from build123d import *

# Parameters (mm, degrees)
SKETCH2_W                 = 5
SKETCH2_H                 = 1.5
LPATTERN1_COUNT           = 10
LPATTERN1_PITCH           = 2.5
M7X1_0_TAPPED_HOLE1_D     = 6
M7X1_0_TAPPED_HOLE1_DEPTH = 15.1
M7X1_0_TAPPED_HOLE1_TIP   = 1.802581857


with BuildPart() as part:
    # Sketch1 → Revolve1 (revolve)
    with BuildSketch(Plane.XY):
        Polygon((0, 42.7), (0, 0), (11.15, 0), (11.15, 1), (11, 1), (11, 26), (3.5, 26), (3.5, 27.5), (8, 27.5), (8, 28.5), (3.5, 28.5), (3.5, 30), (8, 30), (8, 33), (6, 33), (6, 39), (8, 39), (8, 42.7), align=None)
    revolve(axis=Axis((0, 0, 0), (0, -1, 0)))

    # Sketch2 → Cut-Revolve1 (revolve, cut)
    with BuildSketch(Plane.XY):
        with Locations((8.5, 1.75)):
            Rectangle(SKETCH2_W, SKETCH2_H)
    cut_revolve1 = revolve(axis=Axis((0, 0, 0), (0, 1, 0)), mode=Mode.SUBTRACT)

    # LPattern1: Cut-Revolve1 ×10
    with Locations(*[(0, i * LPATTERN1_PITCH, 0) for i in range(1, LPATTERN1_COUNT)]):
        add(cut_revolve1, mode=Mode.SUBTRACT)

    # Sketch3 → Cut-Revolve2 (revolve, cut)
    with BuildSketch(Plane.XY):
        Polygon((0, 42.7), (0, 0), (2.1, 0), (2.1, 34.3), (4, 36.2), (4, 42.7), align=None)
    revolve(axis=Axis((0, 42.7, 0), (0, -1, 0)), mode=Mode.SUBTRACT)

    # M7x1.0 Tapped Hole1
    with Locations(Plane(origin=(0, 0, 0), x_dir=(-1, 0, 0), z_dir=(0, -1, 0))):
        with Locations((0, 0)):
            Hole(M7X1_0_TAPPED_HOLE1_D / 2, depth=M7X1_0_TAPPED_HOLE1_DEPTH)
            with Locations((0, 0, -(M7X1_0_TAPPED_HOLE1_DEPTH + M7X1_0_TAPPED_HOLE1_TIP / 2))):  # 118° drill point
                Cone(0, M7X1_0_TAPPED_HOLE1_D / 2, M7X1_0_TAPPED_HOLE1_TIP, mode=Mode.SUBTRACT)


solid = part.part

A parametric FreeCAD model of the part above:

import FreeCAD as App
import Part
import Sketcher
Q = App.Units.Quantity

doc = App.newDocument("Part")
params = doc.addObject("Spreadsheet::Sheet", "Params")
for row, (alias, value) in enumerate([
    ("sketch1_width", "2 mm"),
    ("sketch1_width2", "8 mm"),
    ("sketch1_height", "1 mm"),
    ("sketch1_height2", "25 mm"),
    ("sketch1_height3", "3 mm"),
    ("revolution_angle", "360 deg"),
    ("sketch2_width", "5 mm"),
    ("sketch2_height", "1.5 mm"),
    ("groove_angle", "360 deg"),
    ("linearpattern_pitch", "2.5 mm"),
    ("sketch3_width", "4 mm"),
    ("sketch3_width2", "2.1 mm"),
    ("sketch3_height", "42.7 mm"),
    ("sketch3_height2", "34.3 mm"),
    ("groove2_angle", "360 deg"),
    ("sketch4_diameter", "6 mm"),
    ("hole_diameter", "6 mm"),
    ("hole_depth", "15.1 mm"),
], start=1):
    params.set(f"A{row}", alias)
    params.set(f"B{row}", "=" + value)
    params.setAlias(f"B{row}", alias)

body = doc.addObject("PartDesign::Body", "Body")

# Sketch on XY plane
sketch1 = body.newObject("Sketcher::SketchObject", "Sketch")
sketch1.AttachmentSupport = (doc.getObject("XY_Plane"), [""])
sketch1.MapMode = "FlatFace"
sketch1.addGeometry([
    Part.LineSegment(App.Vector(0, 42.7, 0), App.Vector(0, 0, 0)),  # 0
    Part.LineSegment(App.Vector(0, 0, 0), App.Vector(11.15, 0, 0)),  # 1
    Part.LineSegment(App.Vector(11.15, 0, 0), App.Vector(11.15, 1, 0)),  # 2
    Part.LineSegment(App.Vector(11.15, 1, 0), App.Vector(11, 1, 0)),  # 3
    Part.LineSegment(App.Vector(11, 1, 0), App.Vector(11, 26, 0)),  # 4
    Part.LineSegment(App.Vector(11, 26, 0), App.Vector(3.5, 26, 0)),  # 5
    Part.LineSegment(App.Vector(3.5, 26, 0), App.Vector(3.5, 27.5, 0)),  # 6
    Part.LineSegment(App.Vector(3.5, 27.5, 0), App.Vector(8, 27.5, 0)),  # 7
    Part.LineSegment(App.Vector(8, 27.5, 0), App.Vector(8, 28.5, 0)),  # 8
    Part.LineSegment(App.Vector(8, 28.5, 0), App.Vector(3.5, 28.5, 0)),  # 9
    Part.LineSegment(App.Vector(3.5, 28.5, 0), App.Vector(3.5, 30, 0)),  # 10
    Part.LineSegment(App.Vector(3.5, 30, 0), App.Vector(8, 30, 0)),  # 11
    Part.LineSegment(App.Vector(8, 30, 0), App.Vector(8, 33, 0)),  # 12
    Part.LineSegment(App.Vector(8, 33, 0), App.Vector(6, 33, 0)),  # 13
    Part.LineSegment(App.Vector(6, 33, 0), App.Vector(6, 39, 0)),  # 14
    Part.LineSegment(App.Vector(6, 39, 0), App.Vector(8, 39, 0)),  # 15
    Part.LineSegment(App.Vector(8, 39, 0), App.Vector(8, 42.7, 0)),  # 16
    Part.LineSegment(App.Vector(8, 42.7, 0), App.Vector(0, 42.7, 0)),  # 17
], False)
sketch1.addConstraint([
    Sketcher.Constraint("Coincident", 0, 2, 1, 1),
    Sketcher.Constraint("Coincident", 1, 2, 2, 1),
    Sketcher.Constraint("Coincident", 2, 2, 3, 1),
    Sketcher.Constraint("Coincident", 3, 2, 4, 1),
    Sketcher.Constraint("Coincident", 4, 2, 5, 1),
    Sketcher.Constraint("Coincident", 5, 2, 6, 1),
    Sketcher.Constraint("Coincident", 6, 2, 7, 1),
    Sketcher.Constraint("Coincident", 7, 2, 8, 1),
    Sketcher.Constraint("Coincident", 8, 2, 9, 1),
    Sketcher.Constraint("Coincident", 9, 2, 10, 1),
    Sketcher.Constraint("Coincident", 10, 2, 11, 1),
    Sketcher.Constraint("Coincident", 11, 2, 12, 1),
    Sketcher.Constraint("Coincident", 12, 2, 13, 1),
    Sketcher.Constraint("Coincident", 13, 2, 14, 1),
    Sketcher.Constraint("Coincident", 14, 2, 15, 1),
    Sketcher.Constraint("Coincident", 15, 2, 16, 1),
    Sketcher.Constraint("Coincident", 16, 2, 17, 1),
    Sketcher.Constraint("Coincident", 17, 2, 0, 1),
    Sketcher.Constraint("Vertical", 0),
    Sketcher.Constraint("Horizontal", 1),
    Sketcher.Constraint("Vertical", 2),
    Sketcher.Constraint("Horizontal", 3),
    Sketcher.Constraint("Vertical", 4),
    Sketcher.Constraint("Horizontal", 5),
    Sketcher.Constraint("Vertical", 6),
    Sketcher.Constraint("Horizontal", 7),
    Sketcher.Constraint("Vertical", 8),
    Sketcher.Constraint("Horizontal", 9),
    Sketcher.Constraint("Vertical", 10),
    Sketcher.Constraint("Horizontal", 11),
    Sketcher.Constraint("Vertical", 12),
    Sketcher.Constraint("Horizontal", 13),
    Sketcher.Constraint("Vertical", 14),
    Sketcher.Constraint("Horizontal", 15),
    Sketcher.Constraint("Vertical", 16),
    Sketcher.Constraint("Horizontal", 17),
    Sketcher.Constraint("Coincident", 0, 2, -1, 1),
    Sketcher.Constraint("Vertical", 6, 2, 9, 2),
    Sketcher.Constraint("Vertical", 8, 2, 11, 2),
    Sketcher.Constraint("Vertical", 12, 2, 15, 2),
    Sketcher.Constraint("Equal", 2, 8),
    Sketcher.Constraint("Equal", 6, 10),
    Sketcher.Constraint("DistanceX", 13, 2, 13, 1, Q("2 mm")),
    Sketcher.Constraint("DistanceX", 17, 2, 17, 1, Q("8 mm")),
    Sketcher.Constraint("DistanceY", 2, 1, 2, 2, Q("1 mm")),
    Sketcher.Constraint("DistanceY", 4, 1, 4, 2, Q("25 mm")),
    Sketcher.Constraint("DistanceY", 12, 1, 12, 2, Q("3 mm")),
    Sketcher.Constraint("DistanceY", 14, 1, 14, 2, Q("6 mm")),
    Sketcher.Constraint("DistanceX", 5, 2, 5, 1, Q("7.5 mm")),
    Sketcher.Constraint("DistanceX", 7, 1, 7, 2, Q("4.5 mm")),
    Sketcher.Constraint("DistanceY", 0, 2, 0, 1, Q("42.7 mm")),
    Sketcher.Constraint("DistanceY", 6, 1, 6, 2, Q("1.5 mm")),
    Sketcher.Constraint("DistanceX", 1, 1, 1, 2, Q("11.15 mm")),
])
sketch1.setExpression("Constraints[42]", "Params.sketch1_width")
sketch1.setExpression("Constraints[43]", "Params.sketch1_width2")
sketch1.setExpression("Constraints[44]", "Params.sketch1_height")
sketch1.setExpression("Constraints[45]", "Params.sketch1_height2")
sketch1.setExpression("Constraints[46]", "Params.sketch1_height3")
revolution = body.newObject("PartDesign::Revolution", "Revolution")
revolution.Profile = sketch1
revolution.ReferenceAxis = (sketch1, ["V_Axis"])
revolution.setExpression("Angle", "Params.revolution_angle")

# Sketch on XY plane
sketch2 = body.newObject("Sketcher::SketchObject", "Sketch001")
sketch2.AttachmentSupport = (doc.getObject("XY_Plane"), [""])
sketch2.MapMode = "FlatFace"
sketch2.addGeometry([
    Part.LineSegment(App.Vector(6, 2.5, 0), App.Vector(6, 1, 0)),
    Part.LineSegment(App.Vector(6, 1, 0), App.Vector(11, 1, 0)),
    Part.LineSegment(App.Vector(11, 1, 0), App.Vector(11, 2.5, 0)),
    Part.LineSegment(App.Vector(11, 2.5, 0), App.Vector(6, 2.5, 0)),
], False)
sketch2.addConstraint([
    Sketcher.Constraint("Coincident", 0, 2, 1, 1),
    Sketcher.Constraint("Coincident", 1, 2, 2, 1),
    Sketcher.Constraint("Coincident", 2, 2, 3, 1),
    Sketcher.Constraint("Coincident", 3, 2, 0, 1),
    Sketcher.Constraint("Vertical", 0),
    Sketcher.Constraint("Horizontal", 1),
    Sketcher.Constraint("Vertical", 2),
    Sketcher.Constraint("Horizontal", 3),
    Sketcher.Constraint("DistanceX", 1, 1, 1, 2, Q("5 mm")),
    Sketcher.Constraint("DistanceY", 0, 2, 0, 1, Q("1.5 mm")),
    Sketcher.Constraint("DistanceX", -1, 1, 0, 2, Q("6 mm")),
    Sketcher.Constraint("DistanceY", -1, 1, 0, 2, Q("1 mm")),
])
sketch2.setExpression("Constraints[8]", "Params.sketch2_width")
sketch2.setExpression("Constraints[9]", "Params.sketch2_height")
groove = body.newObject("PartDesign::Groove", "Groove")
groove.Profile = sketch2
groove.ReferenceAxis = (sketch2, ["V_Axis"])
groove.setExpression("Angle", "Params.groove_angle")
doc.recompute()

linearpattern = body.newObject("PartDesign::LinearPattern", "LinearPattern")
linearpattern.Originals = [groove]
linearpattern.Direction = (doc.getObject("Y_Axis"), [""])
linearpattern.Mode = "offset"
linearpattern.setExpression("Offset", "Params.linearpattern_pitch")
linearpattern.Occurrences = 10
body.Tip = linearpattern

# Sketch on XY plane
sketch3 = body.newObject("Sketcher::SketchObject", "Sketch002")
sketch3.AttachmentSupport = (doc.getObject("XY_Plane"), [""])
sketch3.MapMode = "FlatFace"
sketch3.addGeometry([
    Part.LineSegment(App.Vector(0, 42.7, 0), App.Vector(0, 0, 0)),  # 0
    Part.LineSegment(App.Vector(0, 0, 0), App.Vector(2.1, 0, 0)),  # 1
    Part.LineSegment(App.Vector(2.1, 0, 0), App.Vector(2.1, 34.3, 0)),  # 2
    Part.LineSegment(App.Vector(2.1, 34.3, 0), App.Vector(4, 36.2, 0)),  # 3
    Part.LineSegment(App.Vector(4, 36.2, 0), App.Vector(4, 42.7, 0)),  # 4
    Part.LineSegment(App.Vector(4, 42.7, 0), App.Vector(0, 42.7, 0)),  # 5
], False)
sketch3.addConstraint([
    Sketcher.Constraint("Coincident", 0, 2, 1, 1),
    Sketcher.Constraint("Coincident", 1, 2, 2, 1),
    Sketcher.Constraint("Coincident", 2, 2, 3, 1),
    Sketcher.Constraint("Coincident", 3, 2, 4, 1),
    Sketcher.Constraint("Coincident", 4, 2, 5, 1),
    Sketcher.Constraint("Coincident", 5, 2, 0, 1),
    Sketcher.Constraint("Vertical", 0),
    Sketcher.Constraint("Horizontal", 1),
    Sketcher.Constraint("Vertical", 2),
    Sketcher.Constraint("Vertical", 4),
    Sketcher.Constraint("Horizontal", 5),
    Sketcher.Constraint("Coincident", 0, 2, -1, 1),
    Sketcher.Constraint("DistanceX", 5, 2, 5, 1, Q("4 mm")),
    Sketcher.Constraint("Angle", 3, Q("45 deg")),
    Sketcher.Constraint("DistanceX", 1, 1, 1, 2, Q("2.1 mm")),
    Sketcher.Constraint("DistanceY", 0, 2, 0, 1, Q("42.7 mm")),
    Sketcher.Constraint("DistanceY", 2, 1, 2, 2, Q("34.3 mm")),
])
sketch3.setExpression("Constraints[12]", "Params.sketch3_width")
sketch3.setExpression("Constraints[14]", "Params.sketch3_width2")
sketch3.setExpression("Constraints[15]", "Params.sketch3_height")
sketch3.setExpression("Constraints[16]", "Params.sketch3_height2")
groove2 = body.newObject("PartDesign::Groove", "Groove001")
groove2.Profile = sketch3
groove2.ReferenceAxis = (sketch3, ["V_Axis"])
groove2.setExpression("Angle", "Params.groove2_angle")

# Sketch on XZ plane
sketch4 = body.newObject("Sketcher::SketchObject", "Sketch003")
sketch4.AttachmentSupport = (doc.getObject("XZ_Plane"), [""])
sketch4.MapMode = "FlatFace"
sketch4.addGeometry(Part.Circle(App.Vector(0, 0, 0), App.Vector(0, 0, 1), 3), False)
sketch4.addConstraint([
    Sketcher.Constraint("Coincident", 0, 3, -1, 1),
    Sketcher.Constraint("Diameter", 0, Q("6 mm")),
])
sketch4.setExpression("Constraints[1]", "Params.sketch4_diameter")
doc.recompute()
hole = body.newObject("PartDesign::Hole", "Hole")
hole.Profile = sketch4
hole.ThreadType = "None"
hole.setExpression("Diameter", "Params.hole_diameter")
hole.DepthType = "Dimension"
hole.setExpression("Depth", "Params.hole_depth")
hole.DrillPoint = "Angled"
hole.DrillPointAngle = 118

doc.recompute()
